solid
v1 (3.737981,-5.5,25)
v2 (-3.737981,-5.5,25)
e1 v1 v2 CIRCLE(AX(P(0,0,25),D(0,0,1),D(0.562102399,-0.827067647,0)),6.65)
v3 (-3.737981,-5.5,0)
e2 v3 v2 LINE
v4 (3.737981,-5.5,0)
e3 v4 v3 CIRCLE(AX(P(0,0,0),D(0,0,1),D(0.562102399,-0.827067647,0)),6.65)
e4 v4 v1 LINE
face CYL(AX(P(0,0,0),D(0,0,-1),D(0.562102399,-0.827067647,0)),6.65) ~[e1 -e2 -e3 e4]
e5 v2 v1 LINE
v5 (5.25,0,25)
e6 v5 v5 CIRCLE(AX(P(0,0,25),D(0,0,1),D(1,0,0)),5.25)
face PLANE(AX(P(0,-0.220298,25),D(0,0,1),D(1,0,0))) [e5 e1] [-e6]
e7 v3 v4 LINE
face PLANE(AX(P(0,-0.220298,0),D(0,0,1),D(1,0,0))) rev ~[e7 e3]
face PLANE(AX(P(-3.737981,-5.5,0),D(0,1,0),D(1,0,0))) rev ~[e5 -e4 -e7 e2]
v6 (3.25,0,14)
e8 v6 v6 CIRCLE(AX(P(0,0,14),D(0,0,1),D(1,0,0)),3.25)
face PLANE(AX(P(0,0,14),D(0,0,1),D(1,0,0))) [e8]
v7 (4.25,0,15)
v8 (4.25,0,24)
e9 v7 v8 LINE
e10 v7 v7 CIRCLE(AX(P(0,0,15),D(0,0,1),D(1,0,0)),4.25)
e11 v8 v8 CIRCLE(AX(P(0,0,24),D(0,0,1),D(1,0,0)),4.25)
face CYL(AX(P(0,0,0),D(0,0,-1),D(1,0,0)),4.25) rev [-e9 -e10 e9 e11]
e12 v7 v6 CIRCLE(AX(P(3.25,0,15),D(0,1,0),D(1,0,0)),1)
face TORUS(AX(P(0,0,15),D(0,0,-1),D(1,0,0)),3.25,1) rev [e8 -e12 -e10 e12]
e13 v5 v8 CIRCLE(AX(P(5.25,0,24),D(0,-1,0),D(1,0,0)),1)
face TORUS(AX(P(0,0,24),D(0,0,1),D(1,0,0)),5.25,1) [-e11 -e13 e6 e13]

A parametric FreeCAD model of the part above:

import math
import FreeCAD as App
import Part
import Sketcher

V = App.Vector
Q = App.Units.Quantity


def edges_at(feature, points):
    """Names of the edges that pass closest to the given points."""
    edges = feature.Shape.Edges
    near = lambda p: min(range(len(edges)), key=lambda i: edges[i].distToShape(Part.Vertex(*p))[0])
    return sorted({f"Edge{near(p) + 1}" for p in points})

doc = App.newDocument("Part")
body = doc.addObject("PartDesign::Body", "Body")

# Sketch on XY plane
sketch1 = body.newObject("Sketcher::SketchObject", "Sketch")
sketch1.AttachmentSupport = (doc.getObject("XY_Plane"), [""])
sketch1.MapMode = "FlatFace"
sketch1.addGeometry(Part.Circle(V(0, 0, 0), V(0, 0, 1), 4.25), False)
sketch1.addConstraint([
    Sketcher.Constraint("Coincident", 0, 3, -1, 1),
    Sketcher.Constraint("Diameter", 0, Q("8.5 mm")),
])
pad1 = body.newObject("PartDesign::Pad", "Pad")
pad1.Profile = sketch1
pad1.Length = 14

# Sketch on XY plane
sketch2 = body.newObject("Sketcher::SketchObject", "Sketch001")
sketch2.AttachmentSupport = (doc.getObject("XY_Plane"), [""])
sketch2.MapMode = "FlatFace"
sketch2.addGeometry([
    Part.LineSegment(V(-3.737981, -5.5, 0), V(3.737981, -5.5, 0)),
    Part.ArcOfCircle(Part.Circle(V(0, 0, 0), V(0, 0, 1), 6.65), math.radians(-55.798682), math.radians(235.798682)),
    Part.Circle(V(0, 0, 0), V(0, 0, 1), 4.25),
], False)
sketch2.addConstraint([
    Sketcher.Constraint("Coincident", 0, 1, 1, 2),
    Sketcher.Constraint("Coincident", 1, 1, 0, 2),
    Sketcher.Constraint("Horizontal", 0),
    Sketcher.Constraint("Coincident", 1, 3, -1, 1),
    Sketcher.Constraint("Coincident", 2, 3, -1, 1),
    Sketcher.Constraint("Diameter", 2, Q("8.5 mm")),
    Sketcher.Constraint("Radius", 1, Q("6.65 mm")),
    Sketcher.Constraint("DistanceY", 0, 1, -1, 1, Q("5.5 mm")),
])
pad2 = body.newObject("PartDesign::Pad", "Pad001")
pad2.Profile = sketch2
pad2.Length = 25
doc.recompute()

fillet = body.newObject("PartDesign::Fillet", "Fillet")
fillet.Base = (pad2, edges_at(pad2, [(-4.25, 0, 14), (-4.25, 0, 25)]))
fillet.Radius = 1

doc.recompute()
